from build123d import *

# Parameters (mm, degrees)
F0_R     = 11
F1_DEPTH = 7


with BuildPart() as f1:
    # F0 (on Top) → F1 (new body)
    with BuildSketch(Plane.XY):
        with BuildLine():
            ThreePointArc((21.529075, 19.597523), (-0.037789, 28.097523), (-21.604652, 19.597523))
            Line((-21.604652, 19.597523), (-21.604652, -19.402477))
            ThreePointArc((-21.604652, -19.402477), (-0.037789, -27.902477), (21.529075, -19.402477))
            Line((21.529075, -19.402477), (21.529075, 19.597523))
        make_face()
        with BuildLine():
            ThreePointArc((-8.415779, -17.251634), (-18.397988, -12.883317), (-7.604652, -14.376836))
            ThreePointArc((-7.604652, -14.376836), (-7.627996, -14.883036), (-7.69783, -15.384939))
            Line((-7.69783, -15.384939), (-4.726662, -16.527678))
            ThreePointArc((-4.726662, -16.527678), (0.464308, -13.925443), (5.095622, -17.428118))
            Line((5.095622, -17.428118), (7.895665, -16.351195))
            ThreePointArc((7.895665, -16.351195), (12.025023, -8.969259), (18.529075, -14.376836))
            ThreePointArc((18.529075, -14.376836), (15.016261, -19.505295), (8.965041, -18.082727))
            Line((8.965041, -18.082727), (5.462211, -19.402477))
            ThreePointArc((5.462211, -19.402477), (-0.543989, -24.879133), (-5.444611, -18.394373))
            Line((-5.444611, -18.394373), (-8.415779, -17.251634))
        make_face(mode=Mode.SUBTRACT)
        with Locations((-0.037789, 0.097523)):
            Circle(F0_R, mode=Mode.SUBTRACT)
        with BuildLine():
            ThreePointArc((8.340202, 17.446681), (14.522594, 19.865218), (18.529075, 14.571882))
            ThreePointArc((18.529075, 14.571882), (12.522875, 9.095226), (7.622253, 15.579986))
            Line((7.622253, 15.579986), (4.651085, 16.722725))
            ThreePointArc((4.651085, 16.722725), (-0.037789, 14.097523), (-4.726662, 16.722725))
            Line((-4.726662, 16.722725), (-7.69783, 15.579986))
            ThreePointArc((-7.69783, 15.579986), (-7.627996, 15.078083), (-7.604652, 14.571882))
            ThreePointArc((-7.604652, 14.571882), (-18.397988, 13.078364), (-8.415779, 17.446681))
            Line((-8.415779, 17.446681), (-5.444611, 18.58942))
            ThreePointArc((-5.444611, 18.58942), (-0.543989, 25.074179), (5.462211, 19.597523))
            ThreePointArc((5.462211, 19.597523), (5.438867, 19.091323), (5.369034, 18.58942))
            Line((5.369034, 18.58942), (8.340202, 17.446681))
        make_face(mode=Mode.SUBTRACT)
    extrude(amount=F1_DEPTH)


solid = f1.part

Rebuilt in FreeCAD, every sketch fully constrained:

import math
import FreeCAD as App
import Part
import Sketcher
Q = App.Units.Quantity

doc = App.newDocument("Part")
body = doc.addObject("PartDesign::Body", "Body")

# Sketch on XY plane
sketch1 = body.newObject("Sketcher::SketchObject", "Sketch")
sketch1.AttachmentSupport = (doc.getObject("XY_Plane"), [""])
sketch1.MapMode = "FlatFace"
sketch1.addGeometry([
    Part.ArcOfCircle(Part.Circle(App.Vector(-0.037789, -3.513042, 0), App.Vector(0, 0, 1), 31.610565), math.radians(46.978905), math.radians(133.021095)),  # 0
    Part.LineSegment(App.Vector(-21.604652, 19.597523, 0), App.Vector(-21.604652, -19.402477, 0)),  # 1
    Part.ArcOfCircle(Part.Circle(App.Vector(-0.037789, 3.708088, 0), App.Vector(0, 0, 1), 31.610565), math.radians(-133.021095), math.radians(-46.978905)),  # 2
    Part.LineSegment(App.Vector(21.529075, -19.402477, 0), App.Vector(21.529075, 19.597523, 0)),  # 3
    Part.Circle(App.Vector(-0.037789, 0.097523, 0), App.Vector(0, 0, 1), 11),  # 4
    Part.LineSegment(App.Vector(-5.444611, -18.394373, 0), App.Vector(-8.415779, -17.251634, 0)),  # 5
    Part.ArcOfCircle(Part.Circle(App.Vector(-13.104652, -14.376835, 0), App.Vector(0, 0, 1), 5.5), math.radians(-0.000012), math.radians(328.487085)),  # 6
    Part.ArcOfCircle(Part.Circle(App.Vector(-13.10462, -14.376837, 0), App.Vector(0, 0, 1), 5.499968), math.radians(-10.561589), math.radians(0.000009)),  # 7
    Part.LineSegment(App.Vector(-7.69783, -15.384939, 0), App.Vector(-4.726662, -16.527678, 0)),  # 8
    Part.ArcOfCircle(Part.Circle(App.Vector(-0.037789, -19.402477, 0), App.Vector(0, 0, 1), 5.5), math.radians(21.037218), math.radians(148.48709)),  # 9
    Part.LineSegment(App.Vector(5.095622, -17.428118, 0), App.Vector(7.895665, -16.351195, 0)),  # 10
    Part.ArcOfCircle(Part.Circle(App.Vector(13.029075, -14.376835, 0), App.Vector(0, 0, 1), 5.5), math.radians(-0.000011), math.radians(201.037235)),  # 11
    Part.ArcOfCircle(Part.Circle(App.Vector(13.029075, -14.376836, 0), App.Vector(0, 0, 1), 5.5), math.radians(-137.639094), math.radians(0)),  # 12
    Part.LineSegment(App.Vector(8.965041, -18.082727, 0), App.Vector(5.462211, -19.402477, 0)),  # 13
    Part.ArcOfCircle(Part.Circle(App.Vector(-0.037789, -19.402477, 0), App.Vector(0, 0, 1), 5.5), math.radians(169.438452), math.radians(360.000001)),  # 14
    Part.LineSegment(App.Vector(5.369034, 18.58942, 0), App.Vector(8.340202, 17.446681, 0)),  # 15
    Part.ArcOfCircle(Part.Circle(App.Vector(13.029075, 14.571883, 0), App.Vector(0, 0, 1), 5.5), math.radians(-0.000007), math.radians(148.487093)),  # 16
    Part.ArcOfCircle(Part.Circle(App.Vector(13.029075, 14.571882, 0), App.Vector(0, 0, 1), 5.5), math.radians(169.438452), math.radians(360.000001)),  # 17
    Part.LineSegment(App.Vector(7.622253, 15.579986, 0), App.Vector(4.651085, 16.722725, 0)),  # 18
    Part.ArcOfCircle(Part.Circle(App.Vector(-0.037789, 19.597523, 0), App.Vector(0, 0, 1), 5.5), math.radians(-148.4871), math.radians(-31.5129)),  # 19
    Part.LineSegment(App.Vector(-4.726662, 16.722725, 0), App.Vector(-7.69783, 15.579986, 0)),  # 20
    Part.ArcOfCircle(Part.Circle(App.Vector(-13.10462, 14.571884, 0), App.Vector(0, 0, 1), 5.499968), math.radians(-0.000019), math.radians(10.561589)),  # 21
    Part.ArcOfCircle(Part.Circle(App.Vector(-13.104652, 14.571882, 0), App.Vector(0, 0, 1), 5.5), math.radians(31.512915), math.radians(360.000001)),  # 22
    Part.LineSegment(App.Vector(-8.415779, 17.446681, 0), App.Vector(-5.444611, 18.58942, 0)),  # 23
    Part.ArcOfCircle(Part.Circle(App.Vector(-0.037789, 19.597523, 0), App.Vector(0, 0, 1), 5.5), math.radians(-0.000001), math.radians(190.561539)),  # 24
    Part.ArcOfCircle(Part.Circle(App.Vector(-0.037873, 19.597527, 0), App.Vector(0, 0, 1), 5.500084), math.radians(-10.561421), math.radians(-0.000047)),  # 25
], False)
sketch1.addConstraint([
    Sketcher.Constraint("Coincident", 0, 2, 1, 1),
    Sketcher.Constraint("Coincident", 1, 2, 2, 1),
    Sketcher.Constraint("Coincident", 2, 2, 3, 1),
    Sketcher.Constraint("Coincident", 3, 2, 0, 1),
    Sketcher.Constraint("Coincident", 5, 2, 6, 2),
    Sketcher.Constraint("Coincident", 6, 1, 7, 2),
    Sketcher.Constraint("Coincident", 7, 1, 8, 1),
    Sketcher.Constraint("Coincident", 8, 2, 9, 2),
    Sketcher.Constraint("Coincident", 9, 1, 10, 1),
    Sketcher.Constraint("Coincident", 10, 2, 11, 2),
    Sketcher.Constraint("Coincident", 11, 1, 12, 2),
    Sketcher.Constraint("Coincident", 12, 1, 13, 1),
    Sketcher.Constraint("Coincident", 13, 2, 14, 2),
    Sketcher.Constraint("Coincident", 14, 1, 5, 1),
    Sketcher.Constraint("Coincident", 15, 2, 16, 2),
    Sketcher.Constraint("Coincident", 16, 1, 17, 2),
    Sketcher.Constraint("Coincident", 17, 1, 18, 1),
    Sketcher.Constraint("Coincident", 18, 2, 19, 2),
    Sketcher.Constraint("Coincident", 19, 1, 20, 1),
    Sketcher.Constraint("Coincident", 20, 2, 21, 2),
    Sketcher.Constraint("Coincident", 21, 1, 22, 2),
    Sketcher.Constraint("Coincident", 22, 1, 23, 1),
    Sketcher.Constraint("Coincident", 23, 2, 24, 2),
    Sketcher.Constraint("Coincident", 24, 1, 25, 2),
    Sketcher.Constraint("Coincident", 25, 1, 15, 1),
    Sketcher.Constraint("Vertical", 1),
    Sketcher.Constraint("Vertical", 3),
    Sketcher.Constraint("Coincident", 12, 3, 11, 3),
    Sketcher.Constraint("Coincident", 14, 3, 9, 3),
    Sketcher.Constraint("Coincident", 17, 3, 16, 3),
    Sketcher.Constraint("Coincident", 24, 3, 19, 3),
    Sketcher.Constraint("Diameter", 4, Q("22 mm")),
    Sketcher.Constraint("Radius", 6, Q("5.5 mm")),
    Sketcher.Constraint("Radius", 9, Q("5.5 mm")),
    Sketcher.Constraint("Radius", 11, Q("5.5 mm")),
    Sketcher.Constraint("Radius", 14, Q("5.5 mm")),
    Sketcher.Constraint("Radius", 16, Q("5.5 mm")),
    Sketcher.Constraint("Radius", 19, Q("5.5 mm")),
    Sketcher.Constraint("Radius", 22, Q("5.5 mm")),
    Sketcher.Constraint("Radius", 24, Q("5.5 mm")),
    Sketcher.Constraint("DistanceY", 1, 2, 1, 1, Q("39 mm")),
    Sketcher.Constraint("DistanceY", 3, 1, 3, 2, Q("39 mm")),
    Sketcher.Constraint("Distance", 10, Q("3.000001 mm")),
    Sketcher.Constraint("DistanceX", 11, 1, 2, 2, Q("3 mm")),
    Sketcher.Constraint("DistanceX", 16, 1, 3, 2, Q("3 mm")),
    Sketcher.Constraint("DistanceY", 9, 3, 4, 3, Q("19.5 mm")),
    Sketcher.Constraint("DistanceY", 4, 3, 19, 3, Q("19.5 mm")),
    Sketcher.Constraint("DistanceX", 0, 2, 22, 3, Q("8.5 mm")),
    Sketcher.Constraint("DistanceX", 1, 2, 6, 3, Q("8.5 mm")),
    Sketcher.Constraint("Radius", 7, Q("5.499968 mm")),
    Sketcher.Constraint("Radius", 21, Q("5.499968 mm")),
    Sketcher.Constraint("Radius", 0, Q("31.610565 mm")),
    Sketcher.Constraint("Radius", 2, Q("31.610565 mm")),
    Sketcher.Constraint("Radius", 25, Q("5.500084 mm")),
    Sketcher.Constraint("Distance", 13, Q("3.743202 mm")),
    Sketcher.Constraint("DistanceY", 5, 2, 6, 3, Q("2.874799 mm")),
    Sketcher.Constraint("DistanceY", 9, 3, 8, 2, Q("2.874799 mm")),
    Sketcher.Constraint("DistanceY", 16, 3, 15, 2, Q("2.874798 mm")),
    Sketcher.Constraint("DistanceY", 16, 1, 15, 2, Q("2.874799 mm")),
    Sketcher.Constraint("DistanceY", 18, 2, 24, 3, Q("2.874798 mm")),
    Sketcher.Constraint("DistanceY", 19, 1, 24, 3, Q("2.874798 mm")),
    Sketcher.Constraint("DistanceY", 21, 1, 22, 1, Q("2.874799 mm")),
    Sketcher.Constraint("DistanceY", 22, 3, 22, 1, Q("2.874799 mm")),
    Sketcher.Constraint("DistanceX", 0, 3, -1, 1, Q("0.037789 mm")),
    Sketcher.Constraint("DistanceY", 0, 3, -1, 1, Q("3.513042 mm")),
    Sketcher.Constraint("DistanceX", 2, 3, -1, 1, Q("0.037789 mm")),
    Sketcher.Constraint("DistanceX", 4, 3, -1, 1, Q("0.037789 mm")),
    Sketcher.Constraint("DistanceX", 7, 3, -1, 1, Q("13.10462 mm")),
    Sketcher.Constraint("DistanceX", 9, 3, -1, 1, Q("0.037789 mm")),
    Sketcher.Constraint("DistanceY", -1, 1, 17, 3, Q("14.571882 mm")),
    Sketcher.Constraint("DistanceX", 19, 3, -1, 1, Q("0.037789 mm")),
    Sketcher.Constraint("DistanceY", -1, 1, 22, 3, Q("14.571882 mm")),
    Sketcher.Constraint("DistanceX", 7, 1, -1, 1, Q("7.69783 mm")),
    Sketcher.Constraint("DistanceY", 7, 1, -1, 1, Q("15.384939 mm")),
    Sketcher.Constraint("DistanceY", 8, 2, -1, 1, Q("16.527678 mm")),
    Sketcher.Constraint("DistanceX", -1, 1, 12, 1, Q("8.965041 mm")),
    Sketcher.Constraint("DistanceX", 14, 1, -1, 1, Q("5.444611 mm")),
    Sketcher.Constraint("DistanceX", 20, 2, -1, 1, Q("7.69783 mm")),
    Sketcher.Constraint("DistanceX", 23, 2, -1, 1, Q("5.444611 mm")),
    Sketcher.Constraint("DistanceY", -1, 1, 25, 1, Q("18.58942 mm")),
    Sketcher.Constraint("DistanceY", 9, 3, 6, 3, Q("5.025642 mm")),
    Sketcher.Constraint("DistanceY", 21, 3, 19, 3, Q("5.025639 mm")),
    Sketcher.Constraint("DistanceY", 9, 3, 6, 1, Q("5.025641 mm")),
    Sketcher.Constraint("DistanceX", 9, 3, 9, 1, Q("5.133411 mm")),
    Sketcher.Constraint("DistanceX", 10, 2, 12, 3, Q("5.13341 mm")),
    Sketcher.Constraint("DistanceY", 2, 2, 11, 1, Q("5.025641 mm")),
    Sketcher.Constraint("DistanceX", 17, 1, 15, 2, Q("0.717949 mm")),
    Sketcher.Constraint("DistanceY", 20, 2, 25, 3, Q("4.017541 mm")),
    Sketcher.Constraint("DistanceY", 15, 2, 24, 1, Q("2.150842 mm")),
])
pad1 = body.newObject("PartDesign::Pad", "Pad")
pad1.Profile = sketch1
pad1.Length = 7

doc.recompute()
